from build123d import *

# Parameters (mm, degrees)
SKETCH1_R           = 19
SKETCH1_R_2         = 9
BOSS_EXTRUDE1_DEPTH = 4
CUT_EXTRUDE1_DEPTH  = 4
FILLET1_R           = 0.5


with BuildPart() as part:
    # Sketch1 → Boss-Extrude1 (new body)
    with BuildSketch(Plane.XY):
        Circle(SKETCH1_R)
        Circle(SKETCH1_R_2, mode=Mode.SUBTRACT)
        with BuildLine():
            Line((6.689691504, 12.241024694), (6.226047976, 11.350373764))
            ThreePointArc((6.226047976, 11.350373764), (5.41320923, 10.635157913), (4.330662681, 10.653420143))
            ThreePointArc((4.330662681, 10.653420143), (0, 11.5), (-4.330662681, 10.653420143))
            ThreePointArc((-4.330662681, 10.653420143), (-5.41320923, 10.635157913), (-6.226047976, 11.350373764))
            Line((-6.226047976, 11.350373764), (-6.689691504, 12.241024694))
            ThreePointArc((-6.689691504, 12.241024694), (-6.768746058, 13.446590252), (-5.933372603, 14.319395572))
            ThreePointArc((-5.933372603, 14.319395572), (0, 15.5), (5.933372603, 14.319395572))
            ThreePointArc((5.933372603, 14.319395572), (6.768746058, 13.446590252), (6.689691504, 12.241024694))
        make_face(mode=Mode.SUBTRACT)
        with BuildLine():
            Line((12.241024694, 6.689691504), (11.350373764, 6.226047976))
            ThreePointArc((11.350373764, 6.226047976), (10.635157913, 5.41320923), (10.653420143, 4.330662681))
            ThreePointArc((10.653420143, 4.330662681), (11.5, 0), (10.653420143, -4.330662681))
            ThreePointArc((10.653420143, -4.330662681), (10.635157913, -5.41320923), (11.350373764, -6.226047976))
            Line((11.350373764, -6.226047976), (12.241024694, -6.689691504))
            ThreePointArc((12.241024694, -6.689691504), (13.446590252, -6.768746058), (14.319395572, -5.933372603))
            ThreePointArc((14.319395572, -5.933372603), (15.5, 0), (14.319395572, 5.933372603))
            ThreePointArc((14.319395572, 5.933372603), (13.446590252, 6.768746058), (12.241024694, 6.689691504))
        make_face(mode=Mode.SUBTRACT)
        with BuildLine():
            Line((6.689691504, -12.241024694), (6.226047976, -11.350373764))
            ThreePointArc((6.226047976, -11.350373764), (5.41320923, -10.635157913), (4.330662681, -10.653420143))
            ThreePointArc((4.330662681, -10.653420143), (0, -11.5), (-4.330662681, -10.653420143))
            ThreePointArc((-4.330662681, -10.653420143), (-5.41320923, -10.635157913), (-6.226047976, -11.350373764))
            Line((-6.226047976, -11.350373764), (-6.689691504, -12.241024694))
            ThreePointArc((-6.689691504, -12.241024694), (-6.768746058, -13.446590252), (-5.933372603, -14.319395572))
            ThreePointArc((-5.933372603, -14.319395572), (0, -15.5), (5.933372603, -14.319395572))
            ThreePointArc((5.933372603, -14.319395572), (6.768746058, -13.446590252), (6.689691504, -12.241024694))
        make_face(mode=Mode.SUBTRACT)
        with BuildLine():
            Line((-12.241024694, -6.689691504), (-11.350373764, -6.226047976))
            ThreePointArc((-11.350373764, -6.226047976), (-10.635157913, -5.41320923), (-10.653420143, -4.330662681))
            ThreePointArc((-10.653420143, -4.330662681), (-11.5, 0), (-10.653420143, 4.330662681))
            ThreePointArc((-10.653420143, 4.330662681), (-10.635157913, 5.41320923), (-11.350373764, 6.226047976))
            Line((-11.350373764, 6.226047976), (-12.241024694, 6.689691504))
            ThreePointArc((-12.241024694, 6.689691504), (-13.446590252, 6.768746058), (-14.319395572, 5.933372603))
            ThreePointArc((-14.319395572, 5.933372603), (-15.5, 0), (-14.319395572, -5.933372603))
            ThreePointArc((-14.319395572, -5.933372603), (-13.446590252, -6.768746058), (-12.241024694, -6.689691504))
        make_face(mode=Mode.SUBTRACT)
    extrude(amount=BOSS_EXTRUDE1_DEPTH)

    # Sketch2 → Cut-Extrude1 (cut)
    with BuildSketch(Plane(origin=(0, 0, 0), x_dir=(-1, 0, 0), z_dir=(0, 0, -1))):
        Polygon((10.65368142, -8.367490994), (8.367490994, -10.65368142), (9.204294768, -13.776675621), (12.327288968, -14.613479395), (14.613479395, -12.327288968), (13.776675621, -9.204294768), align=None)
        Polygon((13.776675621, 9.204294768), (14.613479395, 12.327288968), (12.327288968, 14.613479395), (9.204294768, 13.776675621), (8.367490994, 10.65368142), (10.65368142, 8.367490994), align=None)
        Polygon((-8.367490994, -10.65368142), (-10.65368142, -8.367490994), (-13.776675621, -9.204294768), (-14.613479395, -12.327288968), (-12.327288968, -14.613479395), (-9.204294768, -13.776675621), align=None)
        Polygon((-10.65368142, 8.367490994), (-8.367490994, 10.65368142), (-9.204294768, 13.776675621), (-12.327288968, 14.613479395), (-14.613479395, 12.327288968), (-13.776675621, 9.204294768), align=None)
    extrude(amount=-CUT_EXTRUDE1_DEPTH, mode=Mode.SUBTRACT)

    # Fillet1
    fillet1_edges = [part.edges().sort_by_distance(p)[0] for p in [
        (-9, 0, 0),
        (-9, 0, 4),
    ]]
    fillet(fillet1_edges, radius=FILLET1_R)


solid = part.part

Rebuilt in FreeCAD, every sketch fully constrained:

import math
import FreeCAD as App
import Part
import Sketcher

V = App.Vector
Q = App.Units.Quantity


def edges_at(feature, points):
    """Names of the edges that pass closest to the given points."""
    edges = feature.Shape.Edges
    near = lambda p: min(range(len(edges)), key=lambda i: edges[i].distToShape(Part.Vertex(*p))[0])
    return sorted({f"Edge{near(p) + 1}" for p in points})


def add_polygon(sketch, points):
    """Adds a closed chain of lines whose ends are joined by coincident constraints."""
    first, n = sketch.GeometryCount, len(points)
    for a, b in zip(points, points[1:] + points[:1]):
        sketch.addGeometry(Part.LineSegment(App.Vector(*a, 0), App.Vector(*b, 0)), False)
    for i in range(n):
        sketch.addConstraint(Sketcher.Constraint("Coincident", first + i, 2, first + (i + 1) % n, 1))

doc = App.newDocument("Part")
body = doc.addObject("PartDesign::Body", "Body")

# Sketch on XY plane
sketch1 = body.newObject("Sketcher::SketchObject", "Sketch")
sketch1.AttachmentSupport = (doc.getObject("XY_Plane"), [""])
sketch1.MapMode = "FlatFace"
sketch1.addGeometry([
    Part.Circle(V(0, 0, 0), V(0, 0, 1), 19),  # 0
    Part.LineSegment(V(6.2, -11.4, 0), V(6.7, -12.2, 0)),  # 1
    Part.ArcOfCircle(Part.Circle(V(5.4, -12.9, 0), V(0, 0, 1), 1.5), math.radians(-67), math.radians(28)),  # 2
    Part.ArcOfCircle(Part.Circle(V(0, 0, 0), V(0, 0, 1), 15.5), math.radians(-113), math.radians(-67)),  # 3
    Part.ArcOfCircle(Part.Circle(V(-5.4, -12.9, 0), V(0, 0, 1), 1.5), math.radians(152), math.radians(247)),  # 4
    Part.LineSegment(V(-6.7, -12.2, 0), V(-6.2, -11.4, 0)),  # 5
    Part.ArcOfCircle(Part.Circle(V(-4.9, -12, 0), V(0, 0, 1), 1.5), math.radians(68), math.radians(153)),  # 6
    Part.ArcOfCircle(Part.Circle(V(0, 0, 0), V(0, 0, 1), 11.5), math.radians(-112), math.radians(-68)),  # 7
    Part.ArcOfCircle(Part.Circle(V(4.9, -12, 0), V(0, 0, 1), 1.5), math.radians(27), math.radians(112)),  # 8
    Part.LineSegment(V(-11.4, -6.2, 0), V(-12.2, -6.7, 0)),  # 9
    Part.ArcOfCircle(Part.Circle(V(-12.9, -5.4, 0), V(0, 0, 1), 1.5), math.radians(-157), math.radians(-62)),  # 10
    Part.ArcOfCircle(Part.Circle(V(0, 0, 0), V(0, 0, 1), 15.5), math.radians(157), math.radians(203)),  # 11
    Part.ArcOfCircle(Part.Circle(V(-12.9, 5.4, 0), V(0, 0, 1), 1.5), math.radians(62), math.radians(157)),  # 12
    Part.LineSegment(V(-12.2, 6.7, 0), V(-11.4, 6.2, 0)),  # 13
    Part.ArcOfCircle(Part.Circle(V(-12, 4.9, 0), V(0, 0, 1), 1.5), math.radians(-22), math.radians(63)),  # 14
    Part.ArcOfCircle(Part.Circle(V(0, 0, 0), V(0, 0, 1), 11.5), math.radians(158), math.radians(202)),  # 15
    Part.ArcOfCircle(Part.Circle(V(-12, -4.9, 0), V(0, 0, 1), 1.5), math.radians(-63), math.radians(22)),  # 16
    Part.Circle(V(0, 0, 0), V(0, 0, 1), 9),  # 17
    Part.LineSegment(V(11.4, 6.2, 0), V(12.2, 6.7, 0)),  # 18
    Part.ArcOfCircle(Part.Circle(V(12.9, 5.4, 0), V(0, 0, 1), 1.5), math.radians(23), math.radians(118)),  # 19
    Part.ArcOfCircle(Part.Circle(V(0, 0, 0), V(0, 0, 1), 15.5), math.radians(-23), math.radians(23)),  # 20
    Part.ArcOfCircle(Part.Circle(V(12.9, -5.4, 0), V(0, 0, 1), 1.5), math.radians(-118), math.radians(-23)),  # 21
    Part.LineSegment(V(12.2, -6.7, 0), V(11.4, -6.2, 0)),  # 22
    Part.ArcOfCircle(Part.Circle(V(12, -4.9, 0), V(0, 0, 1), 1.5), math.radians(158), math.radians(243)),  # 23
    Part.ArcOfCircle(Part.Circle(V(0, 0, 0), V(0, 0, 1), 11.5), math.radians(-22), math.radians(22)),  # 24
    Part.ArcOfCircle(Part.Circle(V(12, 4.9, 0), V(0, 0, 1), 1.5), math.radians(117), math.radians(202)),  # 25
    Part.ArcOfCircle(Part.Circle(V(5.4, 12.9, 0), V(0, 0, 1), 1.5), math.radians(-28), math.radians(67)),  # 26
    Part.LineSegment(V(6.7, 12.2, 0), V(6.2, 11.4, 0)),  # 27
    Part.ArcOfCircle(Part.Circle(V(4.9, 12, 0), V(0, 0, 1), 1.5), math.radians(-112), math.radians(-27)),  # 28
    Part.ArcOfCircle(Part.Circle(V(0, 0, 0), V(0, 0, 1), 11.5), math.radians(68), math.radians(112)),  # 29
    Part.ArcOfCircle(Part.Circle(V(-4.9, 12, 0), V(0, 0, 1), 1.5), math.radians(-153), math.radians(-68)),  # 30
    Part.LineSegment(V(-6.2, 11.4, 0), V(-6.7, 12.2, 0)),  # 31
    Part.ArcOfCircle(Part.Circle(V(-5.4, 12.9, 0), V(0, 0, 1), 1.5), math.radians(113), math.radians(208)),  # 32
    Part.ArcOfCircle(Part.Circle(V(0, 0, 0), V(0, 0, 1), 15.5), math.radians(67), math.radians(113)),  # 33
], False)
sketch1.addConstraint([
    Sketcher.Constraint("Tangent", 1, 2, 2, 2),
    Sketcher.Constraint("Tangent", 2, 1, 3, 2),
    Sketcher.Constraint("Tangent", 3, 1, 4, 2),
    Sketcher.Constraint("Tangent", 4, 1, 5, 1),
    Sketcher.Constraint("Tangent", 5, 2, 6, 2),
    Sketcher.Constraint("Tangent", 6, 1, 7, 1),
    Sketcher.Constraint("Tangent", 7, 2, 8, 2),
    Sketcher.Constraint("Tangent", 8, 1, 1, 1),
    Sketcher.Constraint("Tangent", 9, 2, 10, 2),
    Sketcher.Constraint("Tangent", 10, 1, 11, 2),
    Sketcher.Constraint("Tangent", 11, 1, 12, 2),
    Sketcher.Constraint("Tangent", 12, 1, 13, 1),
    Sketcher.Constraint("Tangent", 13, 2, 14, 2),
    Sketcher.Constraint("Tangent", 14, 1, 15, 1),
    Sketcher.Constraint("Tangent", 15, 2, 16, 2),
    Sketcher.Constraint("Tangent", 16, 1, 9, 1),
    Sketcher.Constraint("Tangent", 18, 2, 19, 2),
    Sketcher.Constraint("Tangent", 19, 1, 20, 2),
    Sketcher.Constraint("Tangent", 20, 1, 21, 2),
    Sketcher.Constraint("Tangent", 21, 1, 22, 1),
    Sketcher.Constraint("Tangent", 22, 2, 23, 2),
    Sketcher.Constraint("Tangent", 23, 1, 24, 1),
    Sketcher.Constraint("Tangent", 24, 2, 25, 2),
    Sketcher.Constraint("Tangent", 25, 1, 18, 1),
    Sketcher.Constraint("Tangent", 26, 1, 27, 1),
    Sketcher.Constraint("Tangent", 27, 2, 28, 2),
    Sketcher.Constraint("Tangent", 28, 1, 29, 1),
    Sketcher.Constraint("Tangent", 29, 2, 30, 2),
    Sketcher.Constraint("Tangent", 30, 1, 31, 1),
    Sketcher.Constraint("Tangent", 31, 2, 32, 2),
    Sketcher.Constraint("Tangent", 32, 1, 33, 2),
    Sketcher.Constraint("Tangent", 33, 1, 26, 2),
    Sketcher.Constraint("Coincident", 0, 3, -1, 1),
    Sketcher.Constraint("Coincident", 3, 3, -1, 1),
    Sketcher.Constraint("Coincident", 7, 3, -1, 1),
    Sketcher.Constraint("Coincident", 11, 3, -1, 1),
    Sketcher.Constraint("Coincident", 15, 3, -1, 1),
    Sketcher.Constraint("Coincident", 17, 3, -1, 1),
    Sketcher.Constraint("Coincident", 20, 3, -1, 1),
    Sketcher.Constraint("Coincident", 24, 3, -1, 1),
    Sketcher.Constraint("Coincident", 29, 3, -1, 1),
    Sketcher.Constraint("Coincident", 33, 3, -1, 1),
    Sketcher.Constraint("Equal", 2, 4),
    Sketcher.Constraint("Equal", 4, 6),
    Sketcher.Constraint("Equal", 6, 8),
    Sketcher.Constraint("Equal", 8, 10),
    Sketcher.Constraint("Equal", 3, 11),
    Sketcher.Constraint("Equal", 10, 12),
    Sketcher.Constraint("Equal", 12, 14),
    Sketcher.Constraint("Equal", 7, 15),
    Sketcher.Constraint("Equal", 14, 16),
    Sketcher.Constraint("Equal", 16, 19),
    Sketcher.Constraint("Equal", 11, 20),
    Sketcher.Constraint("Equal", 19, 21),
    Sketcher.Constraint("Equal", 21, 23),
    Sketcher.Constraint("Equal", 15, 24),
    Sketcher.Constraint("Equal", 23, 25),
    Sketcher.Constraint("Equal", 25, 26),
    Sketcher.Constraint("Equal", 26, 28),
    Sketcher.Constraint("Equal", 24, 29),
    Sketcher.Constraint("Equal", 28, 30),
    Sketcher.Constraint("Equal", 30, 32),
    Sketcher.Constraint("Equal", 20, 33),
    Sketcher.Constraint("Symmetric", 9, 2, 18, 2, -1, 1),
    Sketcher.Constraint("Symmetric", 12, 1, 21, 1, -1, 1),
    Sketcher.Constraint("Symmetric", 4, 1, 26, 1, -1, 1),
    Sketcher.Constraint("Symmetric", 8, 1, 30, 1, -1, 1),
    Sketcher.Constraint("Symmetric", 1, 2, 4, 1, -2),
    Sketcher.Constraint("Symmetric", 12, 1, 18, 2, -2),
    Sketcher.Constraint("Perpendicular", 1, 9),
    Sketcher.Constraint("Diameter", 0, 38.0),
    Sketcher.Constraint("Diameter", 17, 18.0),
    Sketcher.Constraint("Radius", 2, 1.5),
    Sketcher.Constraint("Radius", 3, 15.5),
    Sketcher.Constraint("Radius", 7, 11.5),
    Sketcher.Constraint("Angle", 1, Q("-62.5 deg")),
    Sketcher.Constraint("DistanceY", 5, 2, 10, 1, 5.417001),
    Sketcher.Constraint("DistanceY", 2, 1, 8, 3, 2.276399),
])
pad1 = body.newObject("PartDesign::Pad", "Pad")
pad1.Profile = sketch1
pad1.Length = 4

# Sketch on XY plane
sketch2 = body.newObject("Sketcher::SketchObject", "Sketch001")
sketch2.AttachmentSupport = (doc.getObject("XY_Plane"), [""])
sketch2.MapMode = "FlatFace"
add_polygon(sketch2, [(-10.7, -8.4), (-8.4, -10.7), (-9.2, -13.8), (-12.3, -14.6), (-14.6, -12.3), (-13.8, -9.2)])  # lines 0-5
add_polygon(sketch2, [(-13.8, 9.2), (-14.6, 12.3), (-12.3, 14.6), (-9.2, 13.8), (-8.4, 10.7), (-10.7, 8.4)])  # lines 6-11
add_polygon(sketch2, [(8.4, -10.7), (10.7, -8.4), (13.8, -9.2), (14.6, -12.3), (12.3, -14.6), (9.2, -13.8)])  # lines 12-17
add_polygon(sketch2, [(10.7, 8.4), (8.4, 10.7), (9.2, 13.8), (12.3, 14.6), (14.6, 12.3), (13.8, 9.2)])  # lines 18-23
sketch2.addConstraint([
    Sketcher.Constraint("Symmetric", 10, 2, 12, 2, -1, 1),
    Sketcher.Constraint("Symmetric", 11, 2, 13, 2, -1, 1),
    Sketcher.Constraint("Symmetric", 6, 2, 14, 2, -1, 1),
    Sketcher.Constraint("Symmetric", 7, 2, 15, 2, -1, 1),
    Sketcher.Constraint("Symmetric", 8, 2, 16, 2, -1, 1),
    Sketcher.Constraint("Symmetric", 9, 2, 17, 2, -1, 1),
    Sketcher.Constraint("Symmetric", 0, 2, 18, 2, -1, 1),
    Sketcher.Constraint("Symmetric", 1, 2, 19, 2, -1, 1),
    Sketcher.Constraint("Symmetric", 2, 2, 20, 2, -1, 1),
    Sketcher.Constraint("Symmetric", 3, 2, 21, 2, -1, 1),
    Sketcher.Constraint("Symmetric", 4, 2, 22, 2, -1, 1),
    Sketcher.Constraint("Symmetric", 5, 2, 23, 2, -1, 1),
    Sketcher.Constraint("Symmetric", 5, 2, 12, 2, -2),
    Sketcher.Constraint("Symmetric", 4, 2, 13, 2, -2),
    Sketcher.Constraint("Symmetric", 3, 2, 14, 2, -2),
    Sketcher.Constraint("Symmetric", 2, 2, 15, 2, -2),
    Sketcher.Constraint("Symmetric", 1, 2, 16, 2, -2),
    Sketcher.Constraint("Symmetric", 0, 2, 17, 2, -2),
    Sketcher.Constraint("Parallel", 0, 3),
    Sketcher.Constraint("Parallel", 1, 4),
    Sketcher.Constraint("Parallel", 2, 5),
    Sketcher.Constraint("Perpendicular", 5, 6),
    Sketcher.Constraint("Perpendicular", 3, 7),
    Sketcher.Constraint("Equal", 0, 1),
    Sketcher.Constraint("Equal", 1, 2),
    Sketcher.Constraint("Equal", 2, 3),
    Sketcher.Constraint("Angle", 1, Q("-105 deg")),
    Sketcher.Constraint("Distance", 0, 3.233162),
    Sketcher.Constraint("DistanceX", 0, 2, -1, 1, 8.367491),
    Sketcher.Constraint("DistanceY", 0, 2, -1, 1, 10.653681),
])
pocket1 = body.newObject("PartDesign::Pocket", "Pocket")
pocket1.Profile = sketch2
pocket1.Length = 4
pocket1.Reversed = True
doc.recompute()

fillet = body.newObject("PartDesign::Fillet", "Fillet")
fillet.Base = (pocket1, edges_at(pocket1, [(-9, 0, 0), (-9, 0, 4)]))
fillet.Radius = 0.5

doc.recompute()
